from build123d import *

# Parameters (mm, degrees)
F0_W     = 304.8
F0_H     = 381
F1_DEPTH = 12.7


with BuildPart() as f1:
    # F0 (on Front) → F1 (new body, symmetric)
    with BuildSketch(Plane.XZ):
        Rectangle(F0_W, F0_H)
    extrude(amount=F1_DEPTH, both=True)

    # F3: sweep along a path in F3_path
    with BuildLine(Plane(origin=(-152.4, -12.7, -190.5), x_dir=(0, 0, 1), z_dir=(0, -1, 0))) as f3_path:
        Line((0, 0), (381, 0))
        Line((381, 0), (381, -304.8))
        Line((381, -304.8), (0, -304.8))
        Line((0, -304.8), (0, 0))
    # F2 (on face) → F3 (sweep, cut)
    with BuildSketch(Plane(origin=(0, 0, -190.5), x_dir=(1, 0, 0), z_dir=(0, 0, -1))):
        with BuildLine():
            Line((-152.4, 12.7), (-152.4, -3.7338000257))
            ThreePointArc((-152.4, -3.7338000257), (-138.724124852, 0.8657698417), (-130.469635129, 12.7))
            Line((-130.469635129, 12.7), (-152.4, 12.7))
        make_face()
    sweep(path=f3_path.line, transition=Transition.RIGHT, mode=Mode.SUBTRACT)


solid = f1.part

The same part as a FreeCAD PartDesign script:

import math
import FreeCAD as App
import Part
import Sketcher
Q = App.Units.Quantity

doc = App.newDocument("Part")
body = doc.addObject("PartDesign::Body", "Body")

# Sketch on XZ plane
sketch1 = body.newObject("Sketcher::SketchObject", "Sketch")
sketch1.AttachmentSupport = (doc.getObject("XZ_Plane"), [""])
sketch1.MapMode = "FlatFace"
sketch1.addGeometry(Part.LineSegment(App.Vector(-152, 190, 0), App.Vector(-152, -190, 0)), False)
sketch1.addGeometry(Part.LineSegment(App.Vector(-152, -190, 0), App.Vector(152, -190, 0)), False)
sketch1.addGeometry(Part.LineSegment(App.Vector(152, -190, 0), App.Vector(152, 190, 0)), False)
sketch1.addGeometry(Part.LineSegment(App.Vector(152, 190, 0), App.Vector(-152, 190, 0)), False)
sketch1.addConstraint(Sketcher.Constraint("Coincident", 0, 2, 1, 1))
sketch1.addConstraint(Sketcher.Constraint("Coincident", 1, 2, 2, 1))
sketch1.addConstraint(Sketcher.Constraint("Coincident", 2, 2, 3, 1))
sketch1.addConstraint(Sketcher.Constraint("Coincident", 3, 2, 0, 1))
sketch1.addConstraint(Sketcher.Constraint("Vertical", 0))
sketch1.addConstraint(Sketcher.Constraint("Horizontal", 1))
sketch1.addConstraint(Sketcher.Constraint("Vertical", 2))
sketch1.addConstraint(Sketcher.Constraint("Horizontal", 3))
sketch1.addConstraint(Sketcher.Constraint("Symmetric", 0, 2, 2, 2, -1, 1))
sketch1.addConstraint(Sketcher.Constraint("DistanceX", 1, 1, 1, 2, Q("12 in")))
sketch1.addConstraint(Sketcher.Constraint("DistanceY", 0, 2, 0, 1, Q("15 in")))
pad1 = body.newObject("PartDesign::Pad", "Pad")
pad1.Profile = sketch1
pad1.Length = Q("1 in")
pad1.Midplane = True

# Sketch on XY plane
sketch2 = body.newObject("Sketcher::SketchObject", "Sketch001")
sketch2.AttachmentSupport = (doc.getObject("XY_Plane"), [""])
sketch2.MapMode = "FlatFace"
sketch2.AttachmentOffset = App.Placement(App.Vector(0, 0, -7.5 * 25.4), App.Rotation())
sketch2.addGeometry(Part.LineSegment(App.Vector(-152, -13, 0), App.Vector(-152, 4, 0)), False)
sketch2.addGeometry(Part.ArcOfCircle(Part.Circle(App.Vector(-153, -19, 0), App.Vector(0, 0, 1), 23), math.radians(17), math.radians(90)), False)
sketch2.addGeometry(Part.LineSegment(App.Vector(-130, -13, 0), App.Vector(-152, -13, 0)), False)
sketch2.addConstraint(Sketcher.Constraint("Coincident", 0, 2, 1, 2))
sketch2.addConstraint(Sketcher.Constraint("Coincident", 1, 1, 2, 1))
sketch2.addConstraint(Sketcher.Constraint("Coincident", 2, 2, 0, 1))
sketch2.addConstraint(Sketcher.Constraint("Vertical", 0))
sketch2.addConstraint(Sketcher.Constraint("Horizontal", 2))
sketch2.addConstraint(Sketcher.Constraint("DistanceX", 0, 2, -1, 1, Q("6 in")))
sketch2.addConstraint(Sketcher.Constraint("DistanceY", 1, 1, -1, 1, Q("0.5 in")))
sketch2.addConstraint(Sketcher.Constraint("DistanceY", 0, 1, 0, 2, Q("0.647 in")))
sketch2.addConstraint(Sketcher.Constraint("DistanceX", 2, 2, 2, 1, Q("0.8634002 in")))
sketch2.addConstraint(Sketcher.Constraint("Radius", 1, Q("23.027954 mm")))

# Sketch on XZ plane
sketch3 = body.newObject("Sketcher::SketchObject", "Sketch002")
sketch3.AttachmentSupport = (doc.getObject("XZ_Plane"), [""])
sketch3.MapMode = "FlatFace"
sketch3.AttachmentOffset = App.Placement(App.Vector(0, 0, 0.5 * 25.4), App.Rotation())
sketch3.addGeometry(Part.LineSegment(App.Vector(-152, -190, 0), App.Vector(-152, 190, 0)), False)
sketch3.addGeometry(Part.LineSegment(App.Vector(-152, 190, 0), App.Vector(152, 190, 0)), False)
sketch3.addGeometry(Part.LineSegment(App.Vector(152, 190, 0), App.Vector(152, -190, 0)), False)
sketch3.addGeometry(Part.LineSegment(App.Vector(152, -190, 0), App.Vector(-152, -190, 0)), False)
sketch3.addConstraint(Sketcher.Constraint("Coincident", 0, 2, 1, 1))
sketch3.addConstraint(Sketcher.Constraint("Coincident", 1, 2, 2, 1))
sketch3.addConstraint(Sketcher.Constraint("Coincident", 2, 2, 3, 1))
sketch3.addConstraint(Sketcher.Constraint("Coincident", 3, 2, 0, 1))
sketch3.addConstraint(Sketcher.Constraint("Vertical", 0))
sketch3.addConstraint(Sketcher.Constraint("Horizontal", 1))
sketch3.addConstraint(Sketcher.Constraint("Vertical", 2))
sketch3.addConstraint(Sketcher.Constraint("Horizontal", 3))
sketch3.addConstraint(Sketcher.Constraint("Symmetric", 0, 2, 2, 2, -1, 1))
sketch3.addConstraint(Sketcher.Constraint("DistanceX", 1, 1, 1, 2, Q("12 in")))
sketch3.addConstraint(Sketcher.Constraint("DistanceY", 0, 1, 0, 2, Q("15 in")))
doc.recompute()

subtractivepipe = body.newObject("PartDesign::SubtractivePipe", "SubtractivePipe")
subtractivepipe.Profile = sketch2
subtractivepipe.Spine = (sketch3, ["Edge1", "Edge2", "Edge3", "Edge4"])
subtractivepipe.Transition = "Right corner"

doc.recompute()
